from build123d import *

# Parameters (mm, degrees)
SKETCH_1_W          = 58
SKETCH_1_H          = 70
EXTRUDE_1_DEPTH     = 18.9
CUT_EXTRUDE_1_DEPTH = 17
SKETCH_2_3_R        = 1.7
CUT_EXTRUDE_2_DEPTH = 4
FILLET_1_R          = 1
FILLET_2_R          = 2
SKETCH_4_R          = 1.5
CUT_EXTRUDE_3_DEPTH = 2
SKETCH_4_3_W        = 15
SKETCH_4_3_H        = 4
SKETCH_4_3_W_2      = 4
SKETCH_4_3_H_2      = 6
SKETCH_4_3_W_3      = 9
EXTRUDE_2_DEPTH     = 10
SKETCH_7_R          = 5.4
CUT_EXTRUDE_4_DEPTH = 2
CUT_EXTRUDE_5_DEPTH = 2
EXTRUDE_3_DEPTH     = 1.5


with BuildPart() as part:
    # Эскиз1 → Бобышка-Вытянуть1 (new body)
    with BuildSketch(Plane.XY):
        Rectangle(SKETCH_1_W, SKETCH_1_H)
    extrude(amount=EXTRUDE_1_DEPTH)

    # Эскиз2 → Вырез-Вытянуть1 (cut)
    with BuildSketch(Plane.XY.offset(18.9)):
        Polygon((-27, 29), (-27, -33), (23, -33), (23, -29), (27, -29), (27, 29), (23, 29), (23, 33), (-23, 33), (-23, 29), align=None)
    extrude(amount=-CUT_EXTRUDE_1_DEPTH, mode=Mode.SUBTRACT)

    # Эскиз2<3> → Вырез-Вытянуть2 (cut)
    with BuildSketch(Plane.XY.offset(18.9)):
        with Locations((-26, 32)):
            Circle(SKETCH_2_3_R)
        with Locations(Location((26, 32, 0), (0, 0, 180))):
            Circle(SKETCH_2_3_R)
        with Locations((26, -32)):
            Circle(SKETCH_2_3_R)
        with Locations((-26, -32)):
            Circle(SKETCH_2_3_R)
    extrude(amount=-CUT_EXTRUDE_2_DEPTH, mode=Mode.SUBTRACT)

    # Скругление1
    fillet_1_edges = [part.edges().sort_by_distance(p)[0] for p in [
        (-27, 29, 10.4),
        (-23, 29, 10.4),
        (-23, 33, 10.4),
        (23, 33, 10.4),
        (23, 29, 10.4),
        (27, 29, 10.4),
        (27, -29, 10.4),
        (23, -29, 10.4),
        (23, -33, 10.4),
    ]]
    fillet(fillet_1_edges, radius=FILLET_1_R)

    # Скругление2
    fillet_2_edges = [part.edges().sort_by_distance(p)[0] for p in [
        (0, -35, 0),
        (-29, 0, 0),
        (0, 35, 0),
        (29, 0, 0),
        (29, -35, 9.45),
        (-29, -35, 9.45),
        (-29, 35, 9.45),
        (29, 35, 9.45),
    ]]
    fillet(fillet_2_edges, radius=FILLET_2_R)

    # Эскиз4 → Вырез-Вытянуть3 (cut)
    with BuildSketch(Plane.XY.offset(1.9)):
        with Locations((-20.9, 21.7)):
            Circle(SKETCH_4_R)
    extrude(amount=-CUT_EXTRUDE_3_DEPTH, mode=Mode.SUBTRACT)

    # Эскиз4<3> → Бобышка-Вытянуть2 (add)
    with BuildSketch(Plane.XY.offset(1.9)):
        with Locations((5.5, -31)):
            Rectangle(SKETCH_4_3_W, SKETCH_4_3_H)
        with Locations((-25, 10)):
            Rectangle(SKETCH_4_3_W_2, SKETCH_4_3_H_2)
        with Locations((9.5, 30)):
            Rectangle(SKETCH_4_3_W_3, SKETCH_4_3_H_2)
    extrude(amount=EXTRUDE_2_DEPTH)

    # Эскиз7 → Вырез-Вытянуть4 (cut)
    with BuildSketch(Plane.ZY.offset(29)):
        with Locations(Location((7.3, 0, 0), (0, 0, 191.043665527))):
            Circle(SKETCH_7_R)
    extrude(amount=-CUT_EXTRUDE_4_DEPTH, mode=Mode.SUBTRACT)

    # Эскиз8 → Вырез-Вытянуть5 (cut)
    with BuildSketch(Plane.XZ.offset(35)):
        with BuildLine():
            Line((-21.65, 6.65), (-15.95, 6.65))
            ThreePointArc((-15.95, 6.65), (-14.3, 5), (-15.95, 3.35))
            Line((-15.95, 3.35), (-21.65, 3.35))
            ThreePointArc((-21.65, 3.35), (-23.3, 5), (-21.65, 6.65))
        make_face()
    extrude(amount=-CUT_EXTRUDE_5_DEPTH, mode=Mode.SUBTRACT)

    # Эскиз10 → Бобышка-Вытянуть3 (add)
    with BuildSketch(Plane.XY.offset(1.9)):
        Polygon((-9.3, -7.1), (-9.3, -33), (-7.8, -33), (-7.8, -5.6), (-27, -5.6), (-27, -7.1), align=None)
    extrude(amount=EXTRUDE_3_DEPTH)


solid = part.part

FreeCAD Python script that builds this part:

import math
import FreeCAD as App
import Part
import Sketcher


def edges_at(feature, points):
    """Names of the edges that pass closest to the given points."""
    edges = feature.Shape.Edges
    near = lambda p: min(range(len(edges)), key=lambda i: edges[i].distToShape(Part.Vertex(*p))[0])
    return sorted({f"Edge{near(p) + 1}" for p in points})


def add_polygon(sketch, points):
    """Adds a closed chain of lines whose ends are joined by coincident constraints."""
    first, n = sketch.GeometryCount, len(points)
    for a, b in zip(points, points[1:] + points[:1]):
        sketch.addGeometry(Part.LineSegment(App.Vector(*a, 0), App.Vector(*b, 0)), False)
    for i in range(n):
        sketch.addConstraint(Sketcher.Constraint("Coincident", first + i, 2, first + (i + 1) % n, 1))

doc = App.newDocument("Part")
body = doc.addObject("PartDesign::Body", "Body")

sketch1 = body.newObject("Sketcher::SketchObject", "Sketch")
sketch1.AttachmentSupport = (doc.getObject("XY_Plane"), [""])
sketch1.MapMode = "FlatFace"
add_polygon(sketch1, [(-29, 35), (-29, -35), (29, -35), (29, 35)])
sketch1.addConstraint([
    Sketcher.Constraint("Vertical", 0),
    Sketcher.Constraint("Horizontal", 1),
    Sketcher.Constraint("Vertical", 2),
    Sketcher.Constraint("Horizontal", 3),
    Sketcher.Constraint("Symmetric", 0, 2, 2, 2, -1, 1),
    Sketcher.Constraint("DistanceX", 1, 1, 1, 2, 58.0),
    Sketcher.Constraint("DistanceY", 0, 2, 0, 1, 70.0),
])
pad1 = body.newObject("PartDesign::Pad", "Pad")
pad1.Profile = sketch1
pad1.Length = 18.9

sketch2 = body.newObject("Sketcher::SketchObject", "Sketch001")
sketch2.AttachmentSupport = (doc.getObject("XY_Plane"), [""])
sketch2.MapMode = "FlatFace"
sketch2.AttachmentOffset = App.Placement(App.Vector(0, 0, 18.9), App.Rotation())
add_polygon(sketch2, [(-27, 29), (-27, -33), (23, -33), (23, -29), (27, -29), (27, 29), (23, 29), (23, 33), (-23, 33), (-23, 29)])
sketch2.addConstraint([
    Sketcher.Constraint("Vertical", 0),
    Sketcher.Constraint("Horizontal", 1),
    Sketcher.Constraint("Vertical", 2),
    Sketcher.Constraint("Horizontal", 3),
    Sketcher.Constraint("Vertical", 4),
    Sketcher.Constraint("Horizontal", 5),
    Sketcher.Constraint("Vertical", 6),
    Sketcher.Constraint("Horizontal", 7),
    Sketcher.Constraint("Vertical", 8),
    Sketcher.Constraint("Horizontal", 9),
    Sketcher.Constraint("Symmetric", 1, 2, 7, 2, -1, 1),
    Sketcher.Constraint("Symmetric", 3, 2, 9, 2, -1, 1),
    Sketcher.Constraint("Symmetric", 5, 2, 8, 2, -2),
    Sketcher.Constraint("Equal", 9, 2),
    Sketcher.Constraint("DistanceX", 1, 1, 1, 2, 50.0),
    Sketcher.Constraint("DistanceX", 3, 1, 3, 2, 4.0),
    Sketcher.Constraint("DistanceY", 0, 2, 0, 1, 62.0),
])
pocket1 = body.newObject("PartDesign::Pocket", "Pocket")
pocket1.Profile = sketch2
pocket1.Length = 17

sketch3 = body.newObject("Sketcher::SketchObject", "Sketch002")
sketch3.AttachmentSupport = (doc.getObject("XY_Plane"), [""])
sketch3.MapMode = "FlatFace"
sketch3.AttachmentOffset = App.Placement(App.Vector(0, 0, 18.9), App.Rotation())
sketch3.addGeometry([
    Part.Circle(App.Vector(-26, 32, 0), App.Vector(0, 0, 1), 1.7),
    Part.Circle(App.Vector(26, 32, 0), App.Vector(0, 0, 1), 1.7),
    Part.Circle(App.Vector(26, -32, 0), App.Vector(0, 0, 1), 1.7),
    Part.Circle(App.Vector(-26, -32, 0), App.Vector(0, 0, 1), 1.7),
], False)
sketch3.addConstraint([
    Sketcher.Constraint("Equal", 0, 1),
    Sketcher.Constraint("Equal", 1, 2),
    Sketcher.Constraint("Equal", 2, 3),
    Sketcher.Constraint("Symmetric", 0, 3, 2, 3, -1, 1),
    Sketcher.Constraint("Symmetric", 1, 3, 3, 3, -1, 1),
    Sketcher.Constraint("Symmetric", 0, 3, 1, 3, -2),
    Sketcher.Constraint("Diameter", 0, 3.4),
    Sketcher.Constraint("DistanceX", 0, 3, -1, 1, 26.0),
    Sketcher.Constraint("DistanceY", -1, 1, 0, 3, 32.0),
])
pocket2 = body.newObject("PartDesign::Pocket", "Pocket001")
pocket2.Profile = sketch3
pocket2.Length = 4
doc.recompute()

fillet = body.newObject("PartDesign::Fillet", "Fillet")
fillet.Base = (pocket2, edges_at(pocket2, [
    (-27, 29, 10.4),
    (-23, 29, 10.4),
    (-23, 33, 10.4),
    (23, 33, 10.4),
    (23, 29, 10.4),
    (27, 29, 10.4),
    (27, -29, 10.4),
    (23, -29, 10.4),
    (23, -33, 10.4),
]))
fillet.Radius = 1
doc.recompute()

fillet2 = body.newObject("PartDesign::Fillet", "Fillet001")
fillet2.Base = (fillet, edges_at(fillet, [
    (0, -35, 0),
    (-29, 0, 0),
    (0, 35, 0),
    (29, 0, 0),
    (29, -35, 9.45),
    (-29, -35, 9.45),
    (-29, 35, 9.45),
    (29, 35, 9.45),
]))
fillet2.Radius = 2

sketch4 = body.newObject("Sketcher::SketchObject", "Sketch003")
sketch4.AttachmentSupport = (doc.getObject("XY_Plane"), [""])
sketch4.MapMode = "FlatFace"
sketch4.AttachmentOffset = App.Placement(App.Vector(0, 0, 1.9), App.Rotation())
sketch4.addGeometry(Part.Circle(App.Vector(-20.9, 21.7, 0), App.Vector(0, 0, 1), 1.5), False)
sketch4.addConstraint([
    Sketcher.Constraint("Diameter", 0, 3.0),
    Sketcher.Constraint("DistanceX", 0, 3, -1, 1, 20.9),
    Sketcher.Constraint("DistanceY", -1, 1, 0, 3, 21.7),
])
pocket3 = body.newObject("PartDesign::Pocket", "Pocket002")
pocket3.Profile = sketch4
pocket3.Length = 2

sketch5 = body.newObject("Sketcher::SketchObject", "Sketch004")
sketch5.AttachmentSupport = (doc.getObject("XY_Plane"), [""])
sketch5.MapMode = "FlatFace"
sketch5.AttachmentOffset = App.Placement(App.Vector(0, 0, 1.9), App.Rotation())
add_polygon(sketch5, [(-2, -29), (-2, -33), (13, -33), (13, -29)])
add_polygon(sketch5, [(-27, 13), (-27, 7), (-23, 7), (-23, 13)])
add_polygon(sketch5, [(5, 33), (5, 27), (14, 27), (14, 33)])
sketch5.addConstraint([
    Sketcher.Constraint("Vertical", 0),
    Sketcher.Constraint("Horizontal", 1),
    Sketcher.Constraint("Vertical", 2),
    Sketcher.Constraint("Horizontal", 3),
    Sketcher.Constraint("Vertical", 4),
    Sketcher.Constraint("Horizontal", 5),
    Sketcher.Constraint("Vertical", 6),
    Sketcher.Constraint("Horizontal", 7),
    Sketcher.Constraint("Vertical", 8),
    Sketcher.Constraint("Horizontal", 9),
    Sketcher.Constraint("Vertical", 10),
    Sketcher.Constraint("Horizontal", 11),
    Sketcher.Constraint("Equal", 7, 0),
    Sketcher.Constraint("Equal", 6, 8),
    Sketcher.Constraint("DistanceX", 1, 1, 1, 2, 15.0),
    Sketcher.Constraint("DistanceX", 5, 1, 5, 2, 4.0),
    Sketcher.Constraint("DistanceX", 9, 1, 9, 2, 9.0),
    Sketcher.Constraint("DistanceY", 4, 2, 4, 1, 6.0),
    Sketcher.Constraint("DistanceX", 0, 2, -1, 1, 2.0),
    Sketcher.Constraint("DistanceY", 0, 2, -1, 1, 33.0),
    Sketcher.Constraint("DistanceX", 4, 2, -1, 1, 27.0),
    Sketcher.Constraint("DistanceY", -1, 1, 4, 2, 7.0),
    Sketcher.Constraint("DistanceX", -1, 1, 8, 2, 5.0),
    Sketcher.Constraint("DistanceY", -1, 1, 8, 2, 27.0),
])
pad2 = body.newObject("PartDesign::Pad", "Pad001")
pad2.Profile = sketch5
pad2.Length = 10

sketch6 = body.newObject("Sketcher::SketchObject", "Sketch005")
sketch6.AttachmentSupport = (doc.getObject("YZ_Plane"), [""])
sketch6.MapMode = "FlatFace"
sketch6.AttachmentOffset = App.Placement(App.Vector(0, 0, -29), App.Rotation())
sketch6.addGeometry(Part.Circle(App.Vector(0, 7.3, 0), App.Vector(0, 0, 1), 5.4), False)
sketch6.addConstraint([
    Sketcher.Constraint("PointOnObject", 0, 3, -2),
    Sketcher.Constraint("Diameter", 0, 10.8),
    Sketcher.Constraint("DistanceY", -1, 1, 0, 3, 7.3),
])
pocket4 = body.newObject("PartDesign::Pocket", "Pocket003")
pocket4.Profile = sketch6
pocket4.Length = 2
pocket4.Reversed = True

sketch7 = body.newObject("Sketcher::SketchObject", "Sketch006")
sketch7.AttachmentSupport = (doc.getObject("XZ_Plane"), [""])
sketch7.MapMode = "FlatFace"
sketch7.AttachmentOffset = App.Placement(App.Vector(0, 0, 35), App.Rotation())
sketch7.addGeometry([
    Part.LineSegment(App.Vector(-15.95, 6.65, 0), App.Vector(-21.65, 6.65, 0)),
    Part.ArcOfCircle(Part.Circle(App.Vector(-21.65, 5, 0), App.Vector(0, 0, 1), 1.65), math.radians(90), math.radians(270)),
    Part.LineSegment(App.Vector(-21.65, 3.35, 0), App.Vector(-15.95, 3.35, 0)),
    Part.ArcOfCircle(Part.Circle(App.Vector(-15.95, 5, 0), App.Vector(0, 0, 1), 1.65), math.radians(-90), math.radians(90)),
], False)
sketch7.addConstraint([
    Sketcher.Constraint("Tangent", 0, 2, 1, 1),
    Sketcher.Constraint("Tangent", 1, 2, 2, 1),
    Sketcher.Constraint("Tangent", 2, 2, 3, 1),
    Sketcher.Constraint("Tangent", 3, 2, 0, 1),
    Sketcher.Constraint("Horizontal", 0),
    Sketcher.Constraint("Horizontal", 2),
    Sketcher.Constraint("Radius", 1, 1.65),
    Sketcher.Constraint("DistanceX", 0, 2, 0, 1, 5.7),
    Sketcher.Constraint("DistanceY", -1, 1, 1, 3, 5.0),
    Sketcher.Constraint("DistanceX", 1, 3, -1, 1, 21.65),
])
pocket5 = body.newObject("PartDesign::Pocket", "Pocket004")
pocket5.Profile = sketch7
pocket5.Length = 2

sketch8 = body.newObject("Sketcher::SketchObject", "Sketch007")
sketch8.AttachmentSupport = (doc.getObject("XY_Plane"), [""])
sketch8.MapMode = "FlatFace"
sketch8.AttachmentOffset = App.Placement(App.Vector(0, 0, 1.9), App.Rotation())
add_polygon(sketch8, [(-9.3, -7.1), (-9.3, -33), (-7.8, -33), (-7.8, -5.6), (-27, -5.6), (-27, -7.1)])
sketch8.addConstraint([
    Sketcher.Constraint("Vertical", 0),
    Sketcher.Constraint("Horizontal", 1),
    Sketcher.Constraint("Vertical", 2),
    Sketcher.Constraint("Horizontal", 3),
    Sketcher.Constraint("Vertical", 4),
    Sketcher.Constraint("Horizontal", 5),
    Sketcher.Constraint("Equal", 1, 4),
    Sketcher.Constraint("DistanceX", 1, 1, 1, 2, 1.5),
    Sketcher.Constraint("DistanceX", 3, 2, 3, 1, 19.2),
    Sketcher.Constraint("DistanceY", 0, 2, 0, 1, 25.9),
    Sketcher.Constraint("DistanceY", 0, 2, -1, 1, 33.0),
    Sketcher.Constraint("DistanceX", 3, 2, -1, 1, 27.0),
])
pad3 = body.newObject("PartDesign::Pad", "Pad002")
pad3.Profile = sketch8
pad3.Length = 1.5

doc.recompute()
